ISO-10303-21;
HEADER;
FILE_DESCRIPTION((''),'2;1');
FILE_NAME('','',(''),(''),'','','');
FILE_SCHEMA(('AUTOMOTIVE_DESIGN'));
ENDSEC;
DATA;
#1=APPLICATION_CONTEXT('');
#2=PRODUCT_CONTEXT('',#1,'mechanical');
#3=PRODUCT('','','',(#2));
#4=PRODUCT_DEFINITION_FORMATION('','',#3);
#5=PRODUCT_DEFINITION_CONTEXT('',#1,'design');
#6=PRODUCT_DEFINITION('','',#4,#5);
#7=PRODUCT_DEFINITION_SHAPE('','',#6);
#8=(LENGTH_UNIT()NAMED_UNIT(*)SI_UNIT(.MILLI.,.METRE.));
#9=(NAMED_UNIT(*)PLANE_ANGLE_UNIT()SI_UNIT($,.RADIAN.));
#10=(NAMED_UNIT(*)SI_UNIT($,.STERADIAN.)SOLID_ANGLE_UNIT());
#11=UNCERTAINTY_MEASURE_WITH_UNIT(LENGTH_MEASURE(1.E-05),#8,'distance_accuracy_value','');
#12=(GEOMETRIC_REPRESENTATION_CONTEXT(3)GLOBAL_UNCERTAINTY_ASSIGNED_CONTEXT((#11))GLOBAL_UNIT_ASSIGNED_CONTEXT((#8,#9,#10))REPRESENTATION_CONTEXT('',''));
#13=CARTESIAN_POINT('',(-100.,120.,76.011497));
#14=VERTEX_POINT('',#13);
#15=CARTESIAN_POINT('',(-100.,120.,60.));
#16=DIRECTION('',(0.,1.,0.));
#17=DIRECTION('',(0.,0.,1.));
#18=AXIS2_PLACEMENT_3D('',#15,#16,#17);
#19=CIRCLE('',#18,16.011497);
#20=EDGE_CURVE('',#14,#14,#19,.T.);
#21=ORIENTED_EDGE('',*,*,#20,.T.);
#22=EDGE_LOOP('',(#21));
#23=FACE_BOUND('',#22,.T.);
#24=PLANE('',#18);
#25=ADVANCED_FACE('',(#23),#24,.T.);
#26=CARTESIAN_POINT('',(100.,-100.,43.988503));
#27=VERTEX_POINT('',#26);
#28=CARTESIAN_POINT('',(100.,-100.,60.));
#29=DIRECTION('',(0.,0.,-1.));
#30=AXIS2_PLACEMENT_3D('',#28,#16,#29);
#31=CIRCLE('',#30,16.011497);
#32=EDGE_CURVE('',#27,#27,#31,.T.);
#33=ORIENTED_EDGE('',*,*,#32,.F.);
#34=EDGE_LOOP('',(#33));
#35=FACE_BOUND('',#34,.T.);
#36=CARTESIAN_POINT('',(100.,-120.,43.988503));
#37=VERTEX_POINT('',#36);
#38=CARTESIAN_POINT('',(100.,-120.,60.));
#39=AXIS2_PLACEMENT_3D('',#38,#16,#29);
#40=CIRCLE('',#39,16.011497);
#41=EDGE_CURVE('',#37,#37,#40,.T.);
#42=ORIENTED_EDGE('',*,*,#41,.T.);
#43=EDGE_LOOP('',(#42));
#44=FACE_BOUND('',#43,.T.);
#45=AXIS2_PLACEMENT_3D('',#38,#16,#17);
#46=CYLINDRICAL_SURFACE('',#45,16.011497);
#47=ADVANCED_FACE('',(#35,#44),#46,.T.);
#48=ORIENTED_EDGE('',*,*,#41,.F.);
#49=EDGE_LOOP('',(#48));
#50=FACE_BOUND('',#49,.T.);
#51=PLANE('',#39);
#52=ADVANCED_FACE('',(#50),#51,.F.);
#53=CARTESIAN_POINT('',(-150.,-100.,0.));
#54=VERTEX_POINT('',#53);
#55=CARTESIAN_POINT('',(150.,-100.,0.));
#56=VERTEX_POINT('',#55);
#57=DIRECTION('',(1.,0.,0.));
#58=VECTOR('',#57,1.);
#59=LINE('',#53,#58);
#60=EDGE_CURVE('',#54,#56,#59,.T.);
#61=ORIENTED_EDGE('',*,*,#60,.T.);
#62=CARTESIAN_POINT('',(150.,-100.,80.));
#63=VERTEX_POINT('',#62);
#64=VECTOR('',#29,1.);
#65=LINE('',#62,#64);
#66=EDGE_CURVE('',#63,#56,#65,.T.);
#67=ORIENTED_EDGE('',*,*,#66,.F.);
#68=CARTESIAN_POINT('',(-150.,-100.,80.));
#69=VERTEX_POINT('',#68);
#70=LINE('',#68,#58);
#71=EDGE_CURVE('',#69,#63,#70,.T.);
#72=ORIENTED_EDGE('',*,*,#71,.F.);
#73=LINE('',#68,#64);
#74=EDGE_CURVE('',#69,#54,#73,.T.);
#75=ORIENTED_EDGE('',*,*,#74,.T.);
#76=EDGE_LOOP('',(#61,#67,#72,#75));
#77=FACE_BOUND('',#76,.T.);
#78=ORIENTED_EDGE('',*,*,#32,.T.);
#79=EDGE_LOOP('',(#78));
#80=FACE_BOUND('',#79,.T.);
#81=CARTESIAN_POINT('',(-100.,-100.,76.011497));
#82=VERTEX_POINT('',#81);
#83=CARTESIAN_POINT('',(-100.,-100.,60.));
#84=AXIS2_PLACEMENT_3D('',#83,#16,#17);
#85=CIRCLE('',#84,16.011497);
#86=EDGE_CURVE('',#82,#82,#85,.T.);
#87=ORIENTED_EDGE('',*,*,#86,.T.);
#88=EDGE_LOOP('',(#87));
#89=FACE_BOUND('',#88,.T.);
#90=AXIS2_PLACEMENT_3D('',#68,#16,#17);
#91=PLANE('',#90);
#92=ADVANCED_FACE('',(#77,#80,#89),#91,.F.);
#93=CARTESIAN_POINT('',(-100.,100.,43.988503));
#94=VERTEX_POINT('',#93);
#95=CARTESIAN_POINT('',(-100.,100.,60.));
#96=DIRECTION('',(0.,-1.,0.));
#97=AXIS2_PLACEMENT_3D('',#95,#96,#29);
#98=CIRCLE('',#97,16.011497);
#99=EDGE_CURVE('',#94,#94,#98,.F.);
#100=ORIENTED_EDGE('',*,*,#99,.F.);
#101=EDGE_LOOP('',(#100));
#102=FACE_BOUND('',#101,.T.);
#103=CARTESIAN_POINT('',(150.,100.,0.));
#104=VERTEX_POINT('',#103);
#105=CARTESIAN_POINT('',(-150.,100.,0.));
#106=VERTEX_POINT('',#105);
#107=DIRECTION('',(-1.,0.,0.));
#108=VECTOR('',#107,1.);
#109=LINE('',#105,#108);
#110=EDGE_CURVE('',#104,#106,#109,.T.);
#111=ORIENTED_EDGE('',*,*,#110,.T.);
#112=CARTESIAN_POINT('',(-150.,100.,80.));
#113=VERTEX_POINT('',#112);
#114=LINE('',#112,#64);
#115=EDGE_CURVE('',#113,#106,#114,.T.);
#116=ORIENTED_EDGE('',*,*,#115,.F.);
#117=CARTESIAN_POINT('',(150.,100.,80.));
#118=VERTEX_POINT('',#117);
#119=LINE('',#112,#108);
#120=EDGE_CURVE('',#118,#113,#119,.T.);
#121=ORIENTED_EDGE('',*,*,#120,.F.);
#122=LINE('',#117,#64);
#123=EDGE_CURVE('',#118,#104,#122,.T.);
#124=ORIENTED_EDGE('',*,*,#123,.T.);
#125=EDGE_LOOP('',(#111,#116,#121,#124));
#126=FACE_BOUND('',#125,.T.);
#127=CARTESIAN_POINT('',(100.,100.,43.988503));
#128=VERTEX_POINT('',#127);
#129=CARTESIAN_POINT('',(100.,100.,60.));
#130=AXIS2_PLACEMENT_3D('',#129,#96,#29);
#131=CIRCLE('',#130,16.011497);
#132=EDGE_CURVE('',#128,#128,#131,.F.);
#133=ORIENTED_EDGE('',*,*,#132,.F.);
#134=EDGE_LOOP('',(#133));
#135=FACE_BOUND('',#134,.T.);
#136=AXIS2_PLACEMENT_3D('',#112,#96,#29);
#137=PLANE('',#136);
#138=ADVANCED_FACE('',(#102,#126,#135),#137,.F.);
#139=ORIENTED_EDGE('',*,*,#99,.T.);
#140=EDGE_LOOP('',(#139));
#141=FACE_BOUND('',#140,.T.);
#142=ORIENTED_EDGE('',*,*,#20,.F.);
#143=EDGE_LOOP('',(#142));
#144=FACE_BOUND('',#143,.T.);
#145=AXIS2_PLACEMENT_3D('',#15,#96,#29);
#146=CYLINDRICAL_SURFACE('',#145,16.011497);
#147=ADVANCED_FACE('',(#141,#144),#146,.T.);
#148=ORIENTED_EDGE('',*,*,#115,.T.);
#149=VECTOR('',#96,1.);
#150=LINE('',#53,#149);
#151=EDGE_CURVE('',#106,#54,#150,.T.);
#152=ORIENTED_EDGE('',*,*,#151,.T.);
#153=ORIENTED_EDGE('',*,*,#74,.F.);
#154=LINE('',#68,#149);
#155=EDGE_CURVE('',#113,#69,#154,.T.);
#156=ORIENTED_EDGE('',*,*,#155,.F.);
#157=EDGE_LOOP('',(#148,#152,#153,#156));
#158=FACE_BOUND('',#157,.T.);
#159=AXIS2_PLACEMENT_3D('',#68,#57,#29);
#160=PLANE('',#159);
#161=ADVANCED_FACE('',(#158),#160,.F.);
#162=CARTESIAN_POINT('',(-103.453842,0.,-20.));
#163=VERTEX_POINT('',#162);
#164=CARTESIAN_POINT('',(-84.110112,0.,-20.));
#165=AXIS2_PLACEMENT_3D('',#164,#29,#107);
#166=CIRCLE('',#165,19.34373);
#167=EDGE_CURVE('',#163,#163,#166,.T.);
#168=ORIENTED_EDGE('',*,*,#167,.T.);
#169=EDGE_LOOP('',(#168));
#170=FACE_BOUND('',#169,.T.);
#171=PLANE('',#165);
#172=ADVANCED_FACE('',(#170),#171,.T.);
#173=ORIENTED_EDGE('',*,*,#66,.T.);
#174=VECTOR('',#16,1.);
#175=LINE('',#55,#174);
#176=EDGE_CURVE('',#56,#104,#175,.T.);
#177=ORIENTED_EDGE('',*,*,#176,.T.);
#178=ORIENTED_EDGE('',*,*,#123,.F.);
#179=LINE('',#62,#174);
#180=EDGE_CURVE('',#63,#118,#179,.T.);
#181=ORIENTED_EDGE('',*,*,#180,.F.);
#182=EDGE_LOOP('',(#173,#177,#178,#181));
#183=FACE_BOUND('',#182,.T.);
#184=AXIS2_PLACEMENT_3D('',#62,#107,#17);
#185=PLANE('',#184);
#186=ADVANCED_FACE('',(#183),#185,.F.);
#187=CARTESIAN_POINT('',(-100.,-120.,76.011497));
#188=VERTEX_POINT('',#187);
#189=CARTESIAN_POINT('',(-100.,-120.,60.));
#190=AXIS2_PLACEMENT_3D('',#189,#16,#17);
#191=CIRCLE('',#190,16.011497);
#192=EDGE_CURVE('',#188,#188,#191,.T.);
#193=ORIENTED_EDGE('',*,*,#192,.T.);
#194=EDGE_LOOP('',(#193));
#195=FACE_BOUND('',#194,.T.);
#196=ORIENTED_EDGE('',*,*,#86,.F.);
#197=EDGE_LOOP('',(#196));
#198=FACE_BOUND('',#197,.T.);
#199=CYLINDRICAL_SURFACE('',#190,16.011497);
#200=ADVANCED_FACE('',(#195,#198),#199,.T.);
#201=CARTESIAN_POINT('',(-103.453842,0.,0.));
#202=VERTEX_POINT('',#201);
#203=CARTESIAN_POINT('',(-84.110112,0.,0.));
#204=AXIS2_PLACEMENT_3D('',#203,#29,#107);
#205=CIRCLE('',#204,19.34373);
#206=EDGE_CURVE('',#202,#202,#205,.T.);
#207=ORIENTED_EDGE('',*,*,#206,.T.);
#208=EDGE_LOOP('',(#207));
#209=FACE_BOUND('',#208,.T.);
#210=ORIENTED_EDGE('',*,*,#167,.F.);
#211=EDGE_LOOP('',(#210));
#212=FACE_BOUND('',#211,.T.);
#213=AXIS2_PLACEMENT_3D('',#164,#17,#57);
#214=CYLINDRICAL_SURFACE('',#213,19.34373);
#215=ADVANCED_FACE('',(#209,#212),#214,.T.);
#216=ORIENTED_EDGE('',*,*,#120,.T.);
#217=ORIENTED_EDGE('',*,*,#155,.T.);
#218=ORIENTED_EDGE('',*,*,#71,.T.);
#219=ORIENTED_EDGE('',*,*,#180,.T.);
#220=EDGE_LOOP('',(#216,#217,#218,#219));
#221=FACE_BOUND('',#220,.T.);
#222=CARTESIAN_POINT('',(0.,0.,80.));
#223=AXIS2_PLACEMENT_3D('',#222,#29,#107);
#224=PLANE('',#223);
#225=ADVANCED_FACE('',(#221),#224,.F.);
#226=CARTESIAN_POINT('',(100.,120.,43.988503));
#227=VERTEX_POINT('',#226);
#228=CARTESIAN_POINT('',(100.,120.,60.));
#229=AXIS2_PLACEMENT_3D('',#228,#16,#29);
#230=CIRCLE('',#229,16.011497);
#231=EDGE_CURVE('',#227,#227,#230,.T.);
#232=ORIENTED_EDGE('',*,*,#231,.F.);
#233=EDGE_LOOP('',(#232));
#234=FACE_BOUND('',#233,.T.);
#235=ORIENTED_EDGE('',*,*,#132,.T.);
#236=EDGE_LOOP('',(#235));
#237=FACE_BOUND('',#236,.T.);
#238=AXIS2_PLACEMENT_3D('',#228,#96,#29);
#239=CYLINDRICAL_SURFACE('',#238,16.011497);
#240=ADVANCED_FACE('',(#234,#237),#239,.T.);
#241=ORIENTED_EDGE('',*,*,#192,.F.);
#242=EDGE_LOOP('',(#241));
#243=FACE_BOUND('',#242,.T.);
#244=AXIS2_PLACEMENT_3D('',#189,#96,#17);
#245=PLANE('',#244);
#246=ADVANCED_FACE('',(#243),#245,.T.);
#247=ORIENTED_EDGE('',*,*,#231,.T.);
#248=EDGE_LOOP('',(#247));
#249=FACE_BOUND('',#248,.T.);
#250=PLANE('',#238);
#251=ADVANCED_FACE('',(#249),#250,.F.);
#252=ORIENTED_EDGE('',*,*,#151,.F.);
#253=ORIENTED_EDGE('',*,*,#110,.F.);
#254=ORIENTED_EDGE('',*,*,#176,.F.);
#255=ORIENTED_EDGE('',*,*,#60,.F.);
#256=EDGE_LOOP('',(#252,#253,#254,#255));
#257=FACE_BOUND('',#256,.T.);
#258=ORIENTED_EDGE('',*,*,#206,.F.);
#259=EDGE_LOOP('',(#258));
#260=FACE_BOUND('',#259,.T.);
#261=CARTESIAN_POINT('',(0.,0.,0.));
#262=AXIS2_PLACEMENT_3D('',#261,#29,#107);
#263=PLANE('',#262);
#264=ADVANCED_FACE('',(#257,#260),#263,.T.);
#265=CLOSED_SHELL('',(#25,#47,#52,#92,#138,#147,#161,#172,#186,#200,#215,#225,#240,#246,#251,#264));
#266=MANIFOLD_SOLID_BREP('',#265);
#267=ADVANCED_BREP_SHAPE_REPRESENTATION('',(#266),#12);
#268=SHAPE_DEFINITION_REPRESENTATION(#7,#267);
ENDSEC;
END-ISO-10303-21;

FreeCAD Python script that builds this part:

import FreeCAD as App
import Part
import Sketcher

V = App.Vector
Q = App.Units.Quantity

doc = App.newDocument("Part")
body = doc.addObject("PartDesign::Body", "Body")

# Sketch on XY plane
sketch1 = doc.addObject("Sketcher::SketchObject", "Sketch")
body.addObject(sketch1)
sketch1.AttachmentSupport = (doc.XY_Plane, [""])
sketch1.MapMode = "FlatFace"
sketch1.addGeometry([
    Part.LineSegment(V(-150, 100, 0), V(-150, -100, 0)),
    Part.LineSegment(V(-150, -100, 0), V(150, -100, 0)),
    Part.LineSegment(V(150, -100, 0), V(150, 100, 0)),
    Part.LineSegment(V(150, 100, 0), V(-150, 100, 0)),
], False)
sketch1.addConstraint([
    Sketcher.Constraint("Coincident", 0, 2, 1, 1),
    Sketcher.Constraint("Coincident", 1, 2, 2, 1),
    Sketcher.Constraint("Coincident", 2, 2, 3, 1),
    Sketcher.Constraint("Coincident", 3, 2, 0, 1),
    Sketcher.Constraint("Vertical", 0),
    Sketcher.Constraint("Horizontal", 1),
    Sketcher.Constraint("Vertical", 2),
    Sketcher.Constraint("Horizontal", 3),
    Sketcher.Constraint("Symmetric", 0, 2, 2, 2, -1, 1),
    Sketcher.Constraint("DistanceX", 1, 1, 1, 2, Q("300 mm")),
    Sketcher.Constraint("DistanceY", 0, 2, 0, 1, Q("200 mm")),
])
pad1 = doc.addObject("PartDesign::Pad", "Pad")
body.addObject(pad1)
pad1.Profile = sketch1
pad1.Length = 80

# Sketch on XZ plane
sketch2 = doc.addObject("Sketcher::SketchObject", "Sketch001")
body.addObject(sketch2)
sketch2.AttachmentSupport = (doc.XZ_Plane, [""])
sketch2.MapMode = "FlatFace"
sketch2.AttachmentOffset = App.Placement(V(0, 0, -100), App.Rotation())
sketch2.addGeometry([
    Part.Circle(V(-100, 60, 0), V(0, 0, 1), 16),
    Part.Circle(V(100, 60, 0), V(0, 0, 1), 16),
], False)
sketch2.addConstraint([
    Sketcher.Constraint("Equal", 0, 1),
    Sketcher.Constraint("Symmetric", 0, 3, 1, 3, -2),
    Sketcher.Constraint("DistanceX", 0, 3, -1, 1, Q("100 mm")),
    Sketcher.Constraint("DistanceY", -1, 1, 0, 3, Q("60 mm")),
    Sketcher.Constraint("Diameter", 0, Q("32.022993 mm")),
])
pad2 = doc.addObject("PartDesign::Pad", "Pad001")
body.addObject(pad2)
pad2.Profile = sketch2
pad2.Length = 20
pad2.Reversed = True
doc.recompute()

mirrored = doc.addObject("PartDesign::Mirrored", "Mirrored")
body.addObject(mirrored)
mirrored.Originals = [pad2]
mirrored.MirrorPlane = (doc.XZ_Plane, [""])
body.Tip = mirrored

# Sketch on XY plane
sketch3 = doc.addObject("Sketcher::SketchObject", "Sketch002")
body.addObject(sketch3)
sketch3.AttachmentSupport = (doc.XY_Plane, [""])
sketch3.MapMode = "FlatFace"
sketch3.addGeometry(Part.Circle(V(-84, 0, 0), V(0, 0, 1), 19), False)
sketch3.addConstraint([
    Sketcher.Constraint("PointOnObject", 0, 3, -1),
    Sketcher.Constraint("Diameter", 0, Q("38.68746 mm")),
    Sketcher.Constraint("DistanceX", 0, 3, -1, 1, Q("84.110112 mm")),
])
pad3 = doc.addObject("PartDesign::Pad", "Pad002")
body.addObject(pad3)
pad3.Profile = sketch3
pad3.Length = 20
pad3.Reversed = True

doc.recompute()
